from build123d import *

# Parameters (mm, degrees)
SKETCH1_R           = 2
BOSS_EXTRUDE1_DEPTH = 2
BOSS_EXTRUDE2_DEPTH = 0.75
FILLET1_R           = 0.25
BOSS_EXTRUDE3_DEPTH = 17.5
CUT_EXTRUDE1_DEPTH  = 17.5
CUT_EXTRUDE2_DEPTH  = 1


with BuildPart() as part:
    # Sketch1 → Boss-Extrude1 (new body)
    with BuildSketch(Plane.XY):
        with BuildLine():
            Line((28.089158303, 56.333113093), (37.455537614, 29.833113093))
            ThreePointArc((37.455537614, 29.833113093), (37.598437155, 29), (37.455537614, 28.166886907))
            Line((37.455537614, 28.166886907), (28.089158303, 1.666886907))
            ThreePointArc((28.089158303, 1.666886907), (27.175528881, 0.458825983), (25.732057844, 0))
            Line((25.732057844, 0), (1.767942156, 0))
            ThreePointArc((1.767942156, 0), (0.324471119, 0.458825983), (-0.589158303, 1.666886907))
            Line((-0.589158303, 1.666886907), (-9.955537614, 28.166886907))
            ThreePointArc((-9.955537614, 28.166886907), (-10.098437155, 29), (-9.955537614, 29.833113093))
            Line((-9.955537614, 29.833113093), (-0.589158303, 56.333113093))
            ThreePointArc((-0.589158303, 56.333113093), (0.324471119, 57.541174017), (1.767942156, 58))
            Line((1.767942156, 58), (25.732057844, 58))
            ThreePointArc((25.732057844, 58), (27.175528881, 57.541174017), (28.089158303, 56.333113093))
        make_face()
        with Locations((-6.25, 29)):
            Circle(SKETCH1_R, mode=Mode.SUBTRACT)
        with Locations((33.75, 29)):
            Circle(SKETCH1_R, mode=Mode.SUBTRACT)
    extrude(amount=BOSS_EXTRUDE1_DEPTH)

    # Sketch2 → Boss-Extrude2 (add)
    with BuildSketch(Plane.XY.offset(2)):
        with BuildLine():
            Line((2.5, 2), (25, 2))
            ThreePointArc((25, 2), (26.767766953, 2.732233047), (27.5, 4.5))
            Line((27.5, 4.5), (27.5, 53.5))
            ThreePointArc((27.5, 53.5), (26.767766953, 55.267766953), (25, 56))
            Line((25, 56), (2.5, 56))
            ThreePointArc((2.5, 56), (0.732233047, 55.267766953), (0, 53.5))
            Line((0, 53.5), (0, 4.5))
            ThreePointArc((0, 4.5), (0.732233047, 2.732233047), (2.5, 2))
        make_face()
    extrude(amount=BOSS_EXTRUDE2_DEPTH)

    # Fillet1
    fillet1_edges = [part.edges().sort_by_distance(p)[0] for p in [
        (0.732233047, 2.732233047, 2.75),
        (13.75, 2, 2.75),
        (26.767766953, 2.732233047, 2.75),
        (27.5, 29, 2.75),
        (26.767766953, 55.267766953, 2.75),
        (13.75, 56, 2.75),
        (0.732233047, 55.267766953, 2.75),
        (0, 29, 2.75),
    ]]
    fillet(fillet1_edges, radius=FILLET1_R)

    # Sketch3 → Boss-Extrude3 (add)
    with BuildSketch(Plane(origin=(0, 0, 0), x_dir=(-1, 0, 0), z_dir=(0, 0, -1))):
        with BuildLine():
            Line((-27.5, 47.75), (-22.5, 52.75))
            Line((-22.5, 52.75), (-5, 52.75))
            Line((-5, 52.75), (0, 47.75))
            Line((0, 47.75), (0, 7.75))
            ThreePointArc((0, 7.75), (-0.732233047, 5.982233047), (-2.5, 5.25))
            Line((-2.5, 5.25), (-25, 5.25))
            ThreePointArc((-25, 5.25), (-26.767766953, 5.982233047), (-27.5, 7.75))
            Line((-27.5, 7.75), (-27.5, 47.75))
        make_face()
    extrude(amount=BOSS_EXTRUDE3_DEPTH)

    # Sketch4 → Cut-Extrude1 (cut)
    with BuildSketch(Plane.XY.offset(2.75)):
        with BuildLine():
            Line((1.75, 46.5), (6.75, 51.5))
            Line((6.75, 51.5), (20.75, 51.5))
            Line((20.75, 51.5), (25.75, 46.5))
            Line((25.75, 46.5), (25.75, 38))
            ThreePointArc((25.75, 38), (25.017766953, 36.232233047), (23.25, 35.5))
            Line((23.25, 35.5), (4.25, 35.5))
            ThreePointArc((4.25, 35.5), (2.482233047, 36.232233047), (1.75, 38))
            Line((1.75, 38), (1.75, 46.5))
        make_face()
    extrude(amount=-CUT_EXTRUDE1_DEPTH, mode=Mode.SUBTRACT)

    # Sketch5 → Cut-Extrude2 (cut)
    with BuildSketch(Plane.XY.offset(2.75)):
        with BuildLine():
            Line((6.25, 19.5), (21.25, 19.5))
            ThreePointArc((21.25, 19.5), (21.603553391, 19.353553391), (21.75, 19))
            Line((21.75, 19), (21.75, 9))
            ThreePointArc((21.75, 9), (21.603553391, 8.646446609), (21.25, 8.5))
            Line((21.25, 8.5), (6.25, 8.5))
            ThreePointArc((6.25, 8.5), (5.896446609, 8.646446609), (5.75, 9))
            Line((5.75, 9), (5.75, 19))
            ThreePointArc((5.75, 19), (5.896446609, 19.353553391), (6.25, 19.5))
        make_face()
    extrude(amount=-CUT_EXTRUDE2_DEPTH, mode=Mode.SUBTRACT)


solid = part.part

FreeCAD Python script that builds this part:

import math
import FreeCAD as App
import Part
import Sketcher

V = App.Vector
Q = App.Units.Quantity


def edges_at(feature, points):
    """Names of the edges that pass closest to the given points."""
    edges = feature.Shape.Edges
    near = lambda p: min(range(len(edges)), key=lambda i: edges[i].distToShape(Part.Vertex(*p))[0])
    return sorted({f"Edge{near(p) + 1}" for p in points})

doc = App.newDocument("Part")
body = doc.addObject("PartDesign::Body", "Body")

# Sketch on XY plane
sketch1 = doc.addObject("Sketcher::SketchObject", "Sketch")
body.addObject(sketch1)
sketch1.AttachmentSupport = (doc.XY_Plane, [""])
sketch1.MapMode = "FlatFace"
sketch1.addGeometry(Part.LineSegment(V(37.5, 29.8, 0), V(28.1, 56.3, 0)), False)
sketch1.addGeometry(Part.ArcOfCircle(Part.Circle(V(25.7, 55.5, 0), V(0, 0, 1), 2.5), math.radians(19), math.radians(90)), False)
sketch1.addGeometry(Part.LineSegment(V(25.7, 58, 0), V(1.8, 58, 0)), False)
sketch1.addGeometry(Part.ArcOfCircle(Part.Circle(V(1.8, 55.5, 0), V(0, 0, 1), 2.5), math.radians(90), math.radians(161)), False)
sketch1.addGeometry(Part.LineSegment(V(-0.6, 56.3, 0), V(-10, 29.8, 0)), False)
sketch1.addGeometry(Part.ArcOfCircle(Part.Circle(V(-7.6, 29, 0), V(0, 0, 1), 2.5), math.radians(161), math.radians(199)), False)
sketch1.addGeometry(Part.LineSegment(V(-10, 28.2, 0), V(-0.6, 1.7, 0)), False)
sketch1.addGeometry(Part.ArcOfCircle(Part.Circle(V(1.8, 2.5, 0), V(0, 0, 1), 2.5), math.radians(-161), math.radians(-90)), False)
sketch1.addGeometry(Part.LineSegment(V(1.8, 0, 0), V(25.7, 0, 0)), False)
sketch1.addGeometry(Part.ArcOfCircle(Part.Circle(V(25.7, 2.5, 0), V(0, 0, 1), 2.5), math.radians(-90), math.radians(-19)), False)
sketch1.addGeometry(Part.LineSegment(V(28.1, 1.7, 0), V(37.5, 28.2, 0)), False)
sketch1.addGeometry(Part.ArcOfCircle(Part.Circle(V(35.1, 29, 0), V(0, 0, 1), 2.5), math.radians(-19), math.radians(19)), False)
sketch1.addGeometry(Part.Circle(V(33.8, 29, 0), V(0, 0, 1), 2), False)
sketch1.addGeometry(Part.Circle(V(-6.2, 29, 0), V(0, 0, 1), 2), False)
sketch1.addConstraint(Sketcher.Constraint("Tangent", 0, 2, 1, 1))
sketch1.addConstraint(Sketcher.Constraint("Tangent", 1, 2, 2, 1))
sketch1.addConstraint(Sketcher.Constraint("Tangent", 2, 2, 3, 1))
sketch1.addConstraint(Sketcher.Constraint("Tangent", 3, 2, 4, 1))
sketch1.addConstraint(Sketcher.Constraint("Tangent", 4, 2, 5, 1))
sketch1.addConstraint(Sketcher.Constraint("Tangent", 5, 2, 6, 1))
sketch1.addConstraint(Sketcher.Constraint("Tangent", 6, 2, 7, 1))
sketch1.addConstraint(Sketcher.Constraint("Tangent", 7, 2, 8, 1))
sketch1.addConstraint(Sketcher.Constraint("Tangent", 8, 2, 9, 1))
sketch1.addConstraint(Sketcher.Constraint("Tangent", 9, 2, 10, 1))
sketch1.addConstraint(Sketcher.Constraint("Tangent", 10, 2, 11, 1))
sketch1.addConstraint(Sketcher.Constraint("Tangent", 11, 2, 0, 1))
sketch1.addConstraint(Sketcher.Constraint("Horizontal", 2))
sketch1.addConstraint(Sketcher.Constraint("Horizontal", 8))
sketch1.addConstraint(Sketcher.Constraint("Equal", 1, 3))
sketch1.addConstraint(Sketcher.Constraint("Equal", 3, 5))
sketch1.addConstraint(Sketcher.Constraint("Equal", 5, 7))
sketch1.addConstraint(Sketcher.Constraint("Equal", 7, 9))
sketch1.addConstraint(Sketcher.Constraint("Equal", 9, 11))
sketch1.addConstraint(Sketcher.Constraint("Equal", 12, 13))
sketch1.addConstraint(Sketcher.Constraint("PointOnObject", 7, 2, -1))
sketch1.addConstraint(Sketcher.Constraint("Parallel", 0, 6))
sketch1.addConstraint(Sketcher.Constraint("Parallel", 4, 10))
sketch1.addConstraint(Sketcher.Constraint("Horizontal", 5, 3, 11, 3))
sketch1.addConstraint(Sketcher.Constraint("Horizontal", 11, 3, 12, 3))
sketch1.addConstraint(Sketcher.Constraint("Horizontal", 12, 3, 13, 3))
sketch1.addConstraint(Sketcher.Constraint("Horizontal", 0, 2, 3, 2))
sketch1.addConstraint(Sketcher.Constraint("Vertical", 3, 3, 7, 3))
sketch1.addConstraint(Sketcher.Constraint("Diameter", 12, Q("4 mm")))
sketch1.addConstraint(Sketcher.Constraint("Radius", 1, Q("2.5 mm")))
sketch1.addConstraint(Sketcher.Constraint("DistanceY", -1, 1, 5, 3, Q("29 mm")))
sketch1.addConstraint(Sketcher.Constraint("DistanceX", 13, 3, 12, 3, Q("40 mm")))
sketch1.addConstraint(Sketcher.Constraint("DistanceX", -1, 1, 12, 3, Q("33.75 mm")))
sketch1.addConstraint(Sketcher.Constraint("DistanceX", 1, 3, 0, 2, Q("2.3571 mm")))
sketch1.addConstraint(Sketcher.Constraint("DistanceX", 2, 2, 2, 1, Q("23.964116 mm")))
sketch1.addConstraint(Sketcher.Constraint("DistanceX", -1, 1, 0, 2, Q("28.089158 mm")))
pad1 = doc.addObject("PartDesign::Pad", "Pad")
body.addObject(pad1)
pad1.Profile = sketch1
pad1.Length = 2

# Sketch on XY plane
sketch2 = doc.addObject("Sketcher::SketchObject", "Sketch001")
body.addObject(sketch2)
sketch2.AttachmentSupport = (doc.XY_Plane, [""])
sketch2.MapMode = "FlatFace"
sketch2.AttachmentOffset = App.Placement(V(0, 0, 2), App.Rotation())
sketch2.addGeometry(Part.LineSegment(V(2.5, 2, 0), V(25, 2, 0)), False)
sketch2.addGeometry(Part.ArcOfCircle(Part.Circle(V(25, 4.5, 0), V(0, 0, 1), 2.5), math.radians(-90), math.radians(0)), False)
sketch2.addGeometry(Part.LineSegment(V(27.5, 4.5, 0), V(27.5, 53.5, 0)), False)
sketch2.addGeometry(Part.ArcOfCircle(Part.Circle(V(25, 53.5, 0), V(0, 0, 1), 2.5), math.radians(0), math.radians(90)), False)
sketch2.addGeometry(Part.LineSegment(V(25, 56, 0), V(2.5, 56, 0)), False)
sketch2.addGeometry(Part.ArcOfCircle(Part.Circle(V(2.5, 53.5, 0), V(0, 0, 1), 2.5), math.radians(90), math.radians(180)), False)
sketch2.addGeometry(Part.LineSegment(V(0, 53.5, 0), V(0, 4.5, 0)), False)
sketch2.addGeometry(Part.ArcOfCircle(Part.Circle(V(2.5, 4.5, 0), V(0, 0, 1), 2.5), math.radians(180), math.radians(270)), False)
sketch2.addConstraint(Sketcher.Constraint("Tangent", 0, 2, 1, 1))
sketch2.addConstraint(Sketcher.Constraint("Tangent", 1, 2, 2, 1))
sketch2.addConstraint(Sketcher.Constraint("Tangent", 2, 2, 3, 1))
sketch2.addConstraint(Sketcher.Constraint("Tangent", 3, 2, 4, 1))
sketch2.addConstraint(Sketcher.Constraint("Tangent", 4, 2, 5, 1))
sketch2.addConstraint(Sketcher.Constraint("Tangent", 5, 2, 6, 1))
sketch2.addConstraint(Sketcher.Constraint("Tangent", 6, 2, 7, 1))
sketch2.addConstraint(Sketcher.Constraint("Tangent", 7, 2, 0, 1))
sketch2.addConstraint(Sketcher.Constraint("Horizontal", 0))
sketch2.addConstraint(Sketcher.Constraint("Vertical", 2))
sketch2.addConstraint(Sketcher.Constraint("Horizontal", 4))
sketch2.addConstraint(Sketcher.Constraint("Vertical", 6))
sketch2.addConstraint(Sketcher.Constraint("Equal", 1, 3))
sketch2.addConstraint(Sketcher.Constraint("Equal", 3, 5))
sketch2.addConstraint(Sketcher.Constraint("Equal", 5, 7))
sketch2.addConstraint(Sketcher.Constraint("PointOnObject", 5, 2, -2))
sketch2.addConstraint(Sketcher.Constraint("Radius", 1, Q("2.5 mm")))
sketch2.addConstraint(Sketcher.Constraint("DistanceY", 2, 1, 2, 2, Q("49 mm")))
sketch2.addConstraint(Sketcher.Constraint("DistanceX", 0, 1, 0, 2, Q("22.5 mm")))
sketch2.addConstraint(Sketcher.Constraint("DistanceY", -1, 1, 0, 2, Q("2 mm")))
pad2 = doc.addObject("PartDesign::Pad", "Pad001")
body.addObject(pad2)
pad2.Profile = sketch2
pad2.Length = 0.75
doc.recompute()

fillet = doc.addObject("PartDesign::Fillet", "Fillet")
body.addObject(fillet)
fillet.Base = (pad2, edges_at(pad2, [
    (0.732, 2.732, 2.75),
    (13.75, 2, 2.75),
    (26.768, 2.732, 2.75),
    (27.5, 29, 2.75),
    (26.768, 55.268, 2.75),
    (13.75, 56, 2.75),
    (0.732, 55.268, 2.75),
    (0, 29, 2.75),
]))
fillet.Radius = 0.25

# Sketch on XY plane
sketch3 = doc.addObject("Sketcher::SketchObject", "Sketch002")
body.addObject(sketch3)
sketch3.AttachmentSupport = (doc.XY_Plane, [""])
sketch3.MapMode = "FlatFace"
sketch3.addGeometry(Part.LineSegment(V(22.5, 52.8, 0), V(27.5, 47.8, 0)), False)
sketch3.addGeometry(Part.LineSegment(V(27.5, 47.8, 0), V(27.5, 7.8, 0)), False)
sketch3.addGeometry(Part.ArcOfCircle(Part.Circle(V(25, 7.8, 0), V(0, 0, 1), 2.5), math.radians(-90), math.radians(0)), False)
sketch3.addGeometry(Part.LineSegment(V(25, 5.2, 0), V(2.5, 5.2, 0)), False)
sketch3.addGeometry(Part.ArcOfCircle(Part.Circle(V(2.5, 7.8, 0), V(0, 0, 1), 2.5), math.radians(180), math.radians(270)), False)
sketch3.addGeometry(Part.LineSegment(V(0, 7.8, 0), V(0, 47.8, 0)), False)
sketch3.addGeometry(Part.LineSegment(V(0, 47.8, 0), V(5, 52.8, 0)), False)
sketch3.addGeometry(Part.LineSegment(V(5, 52.8, 0), V(22.5, 52.8, 0)), False)
sketch3.addConstraint(Sketcher.Constraint("Coincident", 0, 2, 1, 1))
sketch3.addConstraint(Sketcher.Constraint("Tangent", 1, 2, 2, 2))
sketch3.addConstraint(Sketcher.Constraint("Tangent", 2, 1, 3, 1))
sketch3.addConstraint(Sketcher.Constraint("Tangent", 3, 2, 4, 2))
sketch3.addConstraint(Sketcher.Constraint("Tangent", 4, 1, 5, 1))
sketch3.addConstraint(Sketcher.Constraint("Coincident", 5, 2, 6, 1))
sketch3.addConstraint(Sketcher.Constraint("Coincident", 6, 2, 7, 1))
sketch3.addConstraint(Sketcher.Constraint("Coincident", 7, 2, 0, 1))
sketch3.addConstraint(Sketcher.Constraint("Vertical", 1))
sketch3.addConstraint(Sketcher.Constraint("Horizontal", 3))
sketch3.addConstraint(Sketcher.Constraint("Vertical", 5))
sketch3.addConstraint(Sketcher.Constraint("Horizontal", 7))
sketch3.addConstraint(Sketcher.Constraint("Equal", 2, 4))
sketch3.addConstraint(Sketcher.Constraint("PointOnObject", 4, 1, -2))
sketch3.addConstraint(Sketcher.Constraint("Perpendicular", 0, 6))
sketch3.addConstraint(Sketcher.Constraint("Horizontal", 0, 2, 5, 2))
sketch3.addConstraint(Sketcher.Constraint("Equal", 0, 6))
sketch3.addConstraint(Sketcher.Constraint("Radius", 2, Q("2.5 mm")))
sketch3.addConstraint(Sketcher.Constraint("DistanceY", 1, 2, 1, 1, Q("40 mm")))
sketch3.addConstraint(Sketcher.Constraint("DistanceX", 3, 2, 3, 1, Q("22.5 mm")))
sketch3.addConstraint(Sketcher.Constraint("DistanceX", 7, 1, 7, 2, Q("17.5 mm")))
sketch3.addConstraint(Sketcher.Constraint("DistanceY", -1, 1, 2, 3, Q("7.75 mm")))
pad3 = doc.addObject("PartDesign::Pad", "Pad002")
body.addObject(pad3)
pad3.Profile = sketch3
pad3.Length = 17.5
pad3.Reversed = True

# Sketch on XY plane
sketch4 = doc.addObject("Sketcher::SketchObject", "Sketch003")
body.addObject(sketch4)
sketch4.AttachmentSupport = (doc.XY_Plane, [""])
sketch4.MapMode = "FlatFace"
sketch4.AttachmentOffset = App.Placement(V(0, 0, 2.75), App.Rotation())
sketch4.addGeometry(Part.LineSegment(V(6.8, 51.5, 0), V(1.8, 46.5, 0)), False)
sketch4.addGeometry(Part.LineSegment(V(1.8, 46.5, 0), V(1.8, 38, 0)), False)
sketch4.addGeometry(Part.ArcOfCircle(Part.Circle(V(4.2, 38, 0), V(0, 0, 1), 2.5), math.radians(180), math.radians(270)), False)
sketch4.addGeometry(Part.LineSegment(V(4.2, 35.5, 0), V(23.2, 35.5, 0)), False)
sketch4.addGeometry(Part.ArcOfCircle(Part.Circle(V(23.2, 38, 0), V(0, 0, 1), 2.5), math.radians(-90), math.radians(0)), False)
sketch4.addGeometry(Part.LineSegment(V(25.8, 38, 0), V(25.8, 46.5, 0)), False)
sketch4.addGeometry(Part.LineSegment(V(25.8, 46.5, 0), V(20.8, 51.5, 0)), False)
sketch4.addGeometry(Part.LineSegment(V(20.8, 51.5, 0), V(6.8, 51.5, 0)), False)
sketch4.addConstraint(Sketcher.Constraint("Coincident", 0, 2, 1, 1))
sketch4.addConstraint(Sketcher.Constraint("Tangent", 1, 2, 2, 1))
sketch4.addConstraint(Sketcher.Constraint("Tangent", 2, 2, 3, 1))
sketch4.addConstraint(Sketcher.Constraint("Tangent", 3, 2, 4, 1))
sketch4.addConstraint(Sketcher.Constraint("Tangent", 4, 2, 5, 1))
sketch4.addConstraint(Sketcher.Constraint("Coincident", 5, 2, 6, 1))
sketch4.addConstraint(Sketcher.Constraint("Coincident", 6, 2, 7, 1))
sketch4.addConstraint(Sketcher.Constraint("Coincident", 7, 2, 0, 1))
sketch4.addConstraint(Sketcher.Constraint("Vertical", 1))
sketch4.addConstraint(Sketcher.Constraint("Horizontal", 3))
sketch4.addConstraint(Sketcher.Constraint("Vertical", 5))
sketch4.addConstraint(Sketcher.Constraint("Horizontal", 7))
sketch4.addConstraint(Sketcher.Constraint("Equal", 2, 4))
sketch4.addConstraint(Sketcher.Constraint("Perpendicular", 0, 6))
sketch4.addConstraint(Sketcher.Constraint("Horizontal", 0, 2, 5, 2))
sketch4.addConstraint(Sketcher.Constraint("Equal", 0, 6))
sketch4.addConstraint(Sketcher.Constraint("Radius", 2, Q("2.5 mm")))
sketch4.addConstraint(Sketcher.Constraint("DistanceX", 3, 1, 3, 2, Q("19 mm")))
sketch4.addConstraint(Sketcher.Constraint("DistanceX", 7, 2, 7, 1, Q("14 mm")))
sketch4.addConstraint(Sketcher.Constraint("DistanceY", 1, 2, 1, 1, Q("8.5 mm")))
sketch4.addConstraint(Sketcher.Constraint("DistanceY", -1, 1, 2, 3, Q("38 mm")))
sketch4.addConstraint(Sketcher.Constraint("DistanceX", -1, 1, 2, 3, Q("4.25 mm")))
pocket1 = doc.addObject("PartDesign::Pocket", "Pocket")
body.addObject(pocket1)
pocket1.Profile = sketch4
pocket1.Length = 17.5

# Sketch on XY plane
sketch5 = doc.addObject("Sketcher::SketchObject", "Sketch004")
body.addObject(sketch5)
sketch5.AttachmentSupport = (doc.XY_Plane, [""])
sketch5.MapMode = "FlatFace"
sketch5.AttachmentOffset = App.Placement(V(0, 0, 2.75), App.Rotation())
sketch5.addGeometry(Part.LineSegment(V(21.25, 19.5, 0), V(6.25, 19.5, 0)), False)
sketch5.addGeometry(Part.ArcOfCircle(Part.Circle(V(6.25, 19, 0), V(0, 0, 1), 0.5), math.radians(90), math.radians(180)), False)
sketch5.addGeometry(Part.LineSegment(V(5.75, 19, 0), V(5.75, 9, 0)), False)
sketch5.addGeometry(Part.ArcOfCircle(Part.Circle(V(6.25, 9, 0), V(0, 0, 1), 0.5), math.radians(180), math.radians(270)), False)
sketch5.addGeometry(Part.LineSegment(V(6.25, 8.5, 0), V(21.25, 8.5, 0)), False)
sketch5.addGeometry(Part.ArcOfCircle(Part.Circle(V(21.25, 9, 0), V(0, 0, 1), 0.5), math.radians(-90), math.radians(0)), False)
sketch5.addGeometry(Part.LineSegment(V(21.75, 9, 0), V(21.75, 19, 0)), False)
sketch5.addGeometry(Part.ArcOfCircle(Part.Circle(V(21.25, 19, 0), V(0, 0, 1), 0.5), math.radians(0), math.radians(90)), False)
sketch5.addConstraint(Sketcher.Constraint("Tangent", 0, 2, 1, 1))
sketch5.addConstraint(Sketcher.Constraint("Tangent", 1, 2, 2, 1))
sketch5.addConstraint(Sketcher.Constraint("Tangent", 2, 2, 3, 1))
sketch5.addConstraint(Sketcher.Constraint("Tangent", 3, 2, 4, 1))
sketch5.addConstraint(Sketcher.Constraint("Tangent", 4, 2, 5, 1))
sketch5.addConstraint(Sketcher.Constraint("Tangent", 5, 2, 6, 1))
sketch5.addConstraint(Sketcher.Constraint("Tangent", 6, 2, 7, 1))
sketch5.addConstraint(Sketcher.Constraint("Tangent", 7, 2, 0, 1))
sketch5.addConstraint(Sketcher.Constraint("Horizontal", 0))
sketch5.addConstraint(Sketcher.Constraint("Vertical", 2))
sketch5.addConstraint(Sketcher.Constraint("Horizontal", 4))
sketch5.addConstraint(Sketcher.Constraint("Vertical", 6))
sketch5.addConstraint(Sketcher.Constraint("Equal", 1, 3))
sketch5.addConstraint(Sketcher.Constraint("Equal", 3, 5))
sketch5.addConstraint(Sketcher.Constraint("Equal", 5, 7))
sketch5.addConstraint(Sketcher.Constraint("Radius", 1, Q("0.5 mm")))
sketch5.addConstraint(Sketcher.Constraint("DistanceX", 0, 2, 0, 1, Q("15 mm")))
sketch5.addConstraint(Sketcher.Constraint("DistanceY", 2, 2, 2, 1, Q("10 mm")))
sketch5.addConstraint(Sketcher.Constraint("DistanceY", -1, 1, 1, 3, Q("19 mm")))
sketch5.addConstraint(Sketcher.Constraint("DistanceX", -1, 1, 1, 3, Q("6.25 mm")))
pocket2 = doc.addObject("PartDesign::Pocket", "Pocket001")
body.addObject(pocket2)
pocket2.Profile = sketch5
pocket2.Length = 1

doc.recompute()
